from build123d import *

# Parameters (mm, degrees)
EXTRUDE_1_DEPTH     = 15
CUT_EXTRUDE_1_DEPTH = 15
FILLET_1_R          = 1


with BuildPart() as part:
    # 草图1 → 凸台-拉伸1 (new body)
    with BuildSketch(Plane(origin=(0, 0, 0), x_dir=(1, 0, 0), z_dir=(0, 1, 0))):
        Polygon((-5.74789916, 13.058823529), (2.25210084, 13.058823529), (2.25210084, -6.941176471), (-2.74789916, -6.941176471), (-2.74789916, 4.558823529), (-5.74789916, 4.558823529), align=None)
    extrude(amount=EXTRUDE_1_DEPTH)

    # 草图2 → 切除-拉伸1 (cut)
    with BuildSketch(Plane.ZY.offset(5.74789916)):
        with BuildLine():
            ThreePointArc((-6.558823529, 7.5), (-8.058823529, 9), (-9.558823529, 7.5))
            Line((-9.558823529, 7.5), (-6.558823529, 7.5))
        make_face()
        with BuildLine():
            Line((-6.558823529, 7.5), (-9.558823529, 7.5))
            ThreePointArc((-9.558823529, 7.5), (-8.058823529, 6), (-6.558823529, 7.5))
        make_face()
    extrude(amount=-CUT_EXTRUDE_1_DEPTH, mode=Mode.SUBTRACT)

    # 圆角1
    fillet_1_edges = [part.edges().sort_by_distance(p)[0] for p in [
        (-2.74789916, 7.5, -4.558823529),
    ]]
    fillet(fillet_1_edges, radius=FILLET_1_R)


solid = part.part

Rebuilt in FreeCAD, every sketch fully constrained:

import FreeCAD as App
import Part
import Sketcher
Q = App.Units.Quantity


def edges_at(feature, points):
    """Names of the edges that pass closest to the given points."""
    edges = feature.Shape.Edges
    near = lambda p: min(range(len(edges)), key=lambda i: edges[i].distToShape(Part.Vertex(*p))[0])
    return sorted({f"Edge{near(p) + 1}" for p in points})


def add_polygon(sketch, points):
    """Adds a closed chain of lines whose ends are joined by coincident constraints."""
    first, n = sketch.GeometryCount, len(points)
    for a, b in zip(points, points[1:] + points[:1]):
        sketch.addGeometry(Part.LineSegment(App.Vector(*a, 0), App.Vector(*b, 0)), False)
    for i in range(n):
        sketch.addConstraint(Sketcher.Constraint("Coincident", first + i, 2, first + (i + 1) % n, 1))

doc = App.newDocument("Part")
body = doc.addObject("PartDesign::Body", "Body")

# Sketch on XZ plane
sketch1 = body.newObject("Sketcher::SketchObject", "Sketch")
sketch1.AttachmentSupport = (doc.getObject("XZ_Plane"), [""])
sketch1.MapMode = "FlatFace"
add_polygon(sketch1, [(2.3, -13.1), (-5.7, -13.1), (-5.7, -4.6), (-2.7, -4.6), (-2.7, 6.9), (2.3, 6.9)])  # lines 0-5
sketch1.addConstraint(Sketcher.Constraint("Horizontal", 0))
sketch1.addConstraint(Sketcher.Constraint("Vertical", 1))
sketch1.addConstraint(Sketcher.Constraint("Horizontal", 2))
sketch1.addConstraint(Sketcher.Constraint("Vertical", 3))
sketch1.addConstraint(Sketcher.Constraint("Horizontal", 4))
sketch1.addConstraint(Sketcher.Constraint("Vertical", 5))
sketch1.addConstraint(Sketcher.Constraint("DistanceX", 0, 2, 0, 1, Q("8 mm")))
sketch1.addConstraint(Sketcher.Constraint("DistanceX", 2, 1, 2, 2, Q("3 mm")))
sketch1.addConstraint(Sketcher.Constraint("DistanceY", 5, 2, 5, 1, Q("20 mm")))
sketch1.addConstraint(Sketcher.Constraint("DistanceY", 1, 1, 1, 2, Q("8.5 mm")))
sketch1.addConstraint(Sketcher.Constraint("DistanceX", 0, 2, -1, 1, Q("5.747899 mm")))
sketch1.addConstraint(Sketcher.Constraint("DistanceY", 0, 2, -1, 1, Q("13.058824 mm")))
pad1 = body.newObject("PartDesign::Pad", "Pad")
pad1.Profile = sketch1
pad1.Length = 15
pad1.Reversed = True

# Sketch on YZ plane
sketch2 = body.newObject("Sketcher::SketchObject", "Sketch001")
sketch2.AttachmentSupport = (doc.getObject("YZ_Plane"), [""])
sketch2.MapMode = "FlatFace"
sketch2.AttachmentOffset = App.Placement(App.Vector(0, 0, -5.747899), App.Rotation())
sketch2.addGeometry(Part.Circle(App.Vector(7.5, -8.1, 0), App.Vector(0, 0, 1), 1.5), False)
sketch2.addConstraint(Sketcher.Constraint("Diameter", 0, Q("3 mm")))
sketch2.addConstraint(Sketcher.Constraint("DistanceX", -1, 1, 0, 3, Q("7.5 mm")))
sketch2.addConstraint(Sketcher.Constraint("DistanceY", 0, 3, -1, 1, Q("8.058824 mm")))
pocket1 = body.newObject("PartDesign::Pocket", "Pocket")
pocket1.Profile = sketch2
pocket1.Length = 15
pocket1.Reversed = True
doc.recompute()

fillet = body.newObject("PartDesign::Fillet", "Fillet")
fillet.Base = (pocket1, edges_at(pocket1, [(-2.748, 7.5, -4.559)]))
fillet.Radius = 1

doc.recompute()
